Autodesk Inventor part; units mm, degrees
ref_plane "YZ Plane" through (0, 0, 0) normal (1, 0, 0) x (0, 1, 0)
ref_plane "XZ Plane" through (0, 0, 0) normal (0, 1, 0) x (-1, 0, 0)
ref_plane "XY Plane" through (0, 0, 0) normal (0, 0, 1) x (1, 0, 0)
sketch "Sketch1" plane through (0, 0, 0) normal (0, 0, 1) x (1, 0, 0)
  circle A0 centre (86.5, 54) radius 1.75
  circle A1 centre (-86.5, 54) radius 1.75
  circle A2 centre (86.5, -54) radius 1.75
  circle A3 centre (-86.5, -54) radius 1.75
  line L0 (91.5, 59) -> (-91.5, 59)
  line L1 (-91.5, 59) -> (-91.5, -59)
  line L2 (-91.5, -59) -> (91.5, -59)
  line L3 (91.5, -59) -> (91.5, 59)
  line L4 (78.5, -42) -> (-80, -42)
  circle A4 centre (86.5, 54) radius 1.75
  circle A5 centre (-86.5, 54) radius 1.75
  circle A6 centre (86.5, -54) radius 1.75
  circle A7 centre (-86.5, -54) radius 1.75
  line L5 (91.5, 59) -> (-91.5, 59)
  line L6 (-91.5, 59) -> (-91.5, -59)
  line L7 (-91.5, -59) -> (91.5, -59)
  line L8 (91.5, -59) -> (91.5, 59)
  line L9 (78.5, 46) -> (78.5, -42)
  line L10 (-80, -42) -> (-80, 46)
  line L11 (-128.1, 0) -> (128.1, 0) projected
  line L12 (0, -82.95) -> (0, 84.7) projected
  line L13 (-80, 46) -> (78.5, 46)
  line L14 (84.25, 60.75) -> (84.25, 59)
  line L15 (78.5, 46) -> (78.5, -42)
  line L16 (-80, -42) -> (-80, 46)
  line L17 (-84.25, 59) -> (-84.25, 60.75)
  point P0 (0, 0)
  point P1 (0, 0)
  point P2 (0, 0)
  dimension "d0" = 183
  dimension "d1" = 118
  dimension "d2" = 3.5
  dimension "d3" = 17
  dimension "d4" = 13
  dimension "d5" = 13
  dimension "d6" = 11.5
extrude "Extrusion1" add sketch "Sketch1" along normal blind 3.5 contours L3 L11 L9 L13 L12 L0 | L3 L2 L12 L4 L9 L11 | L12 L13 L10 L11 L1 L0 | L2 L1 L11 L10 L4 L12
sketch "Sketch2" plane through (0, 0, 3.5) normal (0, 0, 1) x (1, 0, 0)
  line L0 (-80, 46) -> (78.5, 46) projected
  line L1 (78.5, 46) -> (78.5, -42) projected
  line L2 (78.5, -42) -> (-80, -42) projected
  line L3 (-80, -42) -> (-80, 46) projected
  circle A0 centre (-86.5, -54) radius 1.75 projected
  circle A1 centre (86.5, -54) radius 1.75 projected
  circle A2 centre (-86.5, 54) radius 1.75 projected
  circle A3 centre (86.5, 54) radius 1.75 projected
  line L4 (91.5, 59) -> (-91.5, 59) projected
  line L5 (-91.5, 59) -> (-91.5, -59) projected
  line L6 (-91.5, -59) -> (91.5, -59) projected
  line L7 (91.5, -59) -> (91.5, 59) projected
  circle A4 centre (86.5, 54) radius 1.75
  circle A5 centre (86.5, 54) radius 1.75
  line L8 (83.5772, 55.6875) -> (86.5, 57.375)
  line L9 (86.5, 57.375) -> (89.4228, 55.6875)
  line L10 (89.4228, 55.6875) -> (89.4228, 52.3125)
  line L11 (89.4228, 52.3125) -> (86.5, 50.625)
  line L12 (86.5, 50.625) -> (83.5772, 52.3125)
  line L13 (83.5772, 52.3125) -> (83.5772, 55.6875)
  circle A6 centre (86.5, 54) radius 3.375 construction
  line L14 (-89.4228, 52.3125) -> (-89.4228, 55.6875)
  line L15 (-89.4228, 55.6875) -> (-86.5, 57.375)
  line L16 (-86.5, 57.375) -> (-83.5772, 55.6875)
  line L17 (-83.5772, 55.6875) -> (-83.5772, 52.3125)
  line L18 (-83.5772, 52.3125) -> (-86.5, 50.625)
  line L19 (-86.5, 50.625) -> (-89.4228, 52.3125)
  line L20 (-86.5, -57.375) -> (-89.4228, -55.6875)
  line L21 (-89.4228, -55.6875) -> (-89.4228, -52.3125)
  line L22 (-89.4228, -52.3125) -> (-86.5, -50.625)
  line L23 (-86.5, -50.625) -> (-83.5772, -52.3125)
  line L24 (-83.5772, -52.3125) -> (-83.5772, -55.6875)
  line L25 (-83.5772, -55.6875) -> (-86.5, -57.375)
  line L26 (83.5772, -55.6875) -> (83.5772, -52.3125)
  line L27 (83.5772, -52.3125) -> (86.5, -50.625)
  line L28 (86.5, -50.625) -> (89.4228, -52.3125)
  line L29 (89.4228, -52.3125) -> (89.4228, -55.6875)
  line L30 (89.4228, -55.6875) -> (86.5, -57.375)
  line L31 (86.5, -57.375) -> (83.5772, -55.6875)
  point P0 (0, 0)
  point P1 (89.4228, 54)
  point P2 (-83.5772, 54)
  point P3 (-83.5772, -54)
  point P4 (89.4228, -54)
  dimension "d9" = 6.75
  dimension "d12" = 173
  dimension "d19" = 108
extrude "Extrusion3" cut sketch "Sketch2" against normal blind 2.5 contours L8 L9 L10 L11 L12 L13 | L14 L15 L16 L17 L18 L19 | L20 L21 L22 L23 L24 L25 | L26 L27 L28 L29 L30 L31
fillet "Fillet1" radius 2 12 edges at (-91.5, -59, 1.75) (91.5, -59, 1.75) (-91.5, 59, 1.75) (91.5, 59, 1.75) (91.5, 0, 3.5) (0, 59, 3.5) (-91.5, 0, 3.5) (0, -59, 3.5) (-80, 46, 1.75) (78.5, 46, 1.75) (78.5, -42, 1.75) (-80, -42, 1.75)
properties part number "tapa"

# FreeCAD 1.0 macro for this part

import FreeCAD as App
import Part
import Sketcher
from FreeCAD import Vector
Q = App.Units.Quantity


def edges_at(feature, points):
    """Names of the edges that pass closest to the given points."""
    edges = feature.Shape.Edges
    near = lambda p: min(range(len(edges)), key=lambda i: edges[i].distToShape(Part.Vertex(*p))[0])
    return sorted({f"Edge{near(p) + 1}" for p in points})

doc = App.newDocument("Part")
body = doc.addObject("PartDesign::Body", "Body")

# Sketch on XY plane
sketch1 = body.newObject("Sketcher::SketchObject", "Sketch")
sketch1.AttachmentSupport = (doc.getObject("XY_Plane"), [""])
sketch1.MapMode = "FlatFace"
sketch1.addGeometry(Part.LineSegment(Vector(91.5, 59, 0), Vector(-91.5, 59, 0)), False)
sketch1.addGeometry(Part.LineSegment(Vector(-91.5, 59, 0), Vector(-91.5, -59, 0)), False)
sketch1.addGeometry(Part.LineSegment(Vector(-91.5, -59, 0), Vector(91.5, -59, 0)), False)
sketch1.addGeometry(Part.LineSegment(Vector(91.5, -59, 0), Vector(91.5, 59, 0)), False)
sketch1.addGeometry(Part.LineSegment(Vector(78.5, 46, 0), Vector(78.5, -42, 0)), False)
sketch1.addGeometry(Part.LineSegment(Vector(78.5, -42, 0), Vector(-80, -42, 0)), False)
sketch1.addGeometry(Part.LineSegment(Vector(-80, -42, 0), Vector(-80, 46, 0)), False)
sketch1.addGeometry(Part.LineSegment(Vector(-80, 46, 0), Vector(78.5, 46, 0)), False)
sketch1.addGeometry(Part.Circle(Vector(86.5, 54, 0), Vector(0, 0, 1), 1.8), False)
sketch1.addGeometry(Part.Circle(Vector(86.5, -54, 0), Vector(0, 0, 1), 1.8), False)
sketch1.addGeometry(Part.Circle(Vector(-86.5, 54, 0), Vector(0, 0, 1), 1.8), False)
sketch1.addGeometry(Part.Circle(Vector(-86.5, -54, 0), Vector(0, 0, 1), 1.8), False)
sketch1.addConstraint(Sketcher.Constraint("Coincident", 0, 2, 1, 1))
sketch1.addConstraint(Sketcher.Constraint("Coincident", 1, 2, 2, 1))
sketch1.addConstraint(Sketcher.Constraint("Coincident", 2, 2, 3, 1))
sketch1.addConstraint(Sketcher.Constraint("Coincident", 3, 2, 0, 1))
sketch1.addConstraint(Sketcher.Constraint("Coincident", 4, 2, 5, 1))
sketch1.addConstraint(Sketcher.Constraint("Coincident", 5, 2, 6, 1))
sketch1.addConstraint(Sketcher.Constraint("Coincident", 6, 2, 7, 1))
sketch1.addConstraint(Sketcher.Constraint("Coincident", 7, 2, 4, 1))
sketch1.addConstraint(Sketcher.Constraint("Horizontal", 0))
sketch1.addConstraint(Sketcher.Constraint("Vertical", 1))
sketch1.addConstraint(Sketcher.Constraint("Horizontal", 2))
sketch1.addConstraint(Sketcher.Constraint("Vertical", 3))
sketch1.addConstraint(Sketcher.Constraint("Vertical", 4))
sketch1.addConstraint(Sketcher.Constraint("Horizontal", 5))
sketch1.addConstraint(Sketcher.Constraint("Vertical", 6))
sketch1.addConstraint(Sketcher.Constraint("Horizontal", 7))
sketch1.addConstraint(Sketcher.Constraint("Equal", 8, 9))
sketch1.addConstraint(Sketcher.Constraint("Equal", 9, 10))
sketch1.addConstraint(Sketcher.Constraint("Equal", 10, 11))
sketch1.addConstraint(Sketcher.Constraint("Symmetric", 9, 3, 10, 3, -1, 1))
sketch1.addConstraint(Sketcher.Constraint("Symmetric", 8, 3, 11, 3, -1, 1))
sketch1.addConstraint(Sketcher.Constraint("Symmetric", 0, 2, 2, 2, -1, 1))
sketch1.addConstraint(Sketcher.Constraint("Symmetric", 8, 3, 10, 3, -2))
sketch1.addConstraint(Sketcher.Constraint("Diameter", 8, Q("3.5 mm")))
sketch1.addConstraint(Sketcher.Constraint("DistanceX", 0, 2, 0, 1, Q("183 mm")))
sketch1.addConstraint(Sketcher.Constraint("DistanceY", 1, 2, 1, 1, Q("118 mm")))
sketch1.addConstraint(Sketcher.Constraint("DistanceX", 4, 2, 2, 2, Q("13 mm")))
sketch1.addConstraint(Sketcher.Constraint("DistanceY", 2, 2, 4, 2, Q("17 mm")))
sketch1.addConstraint(Sketcher.Constraint("DistanceY", 6, 2, 0, 2, Q("13 mm")))
sketch1.addConstraint(Sketcher.Constraint("DistanceX", 1, 2, 5, 2, Q("11.5 mm")))
sketch1.addConstraint(Sketcher.Constraint("DistanceY", -1, 1, 8, 3, Q("54 mm")))
sketch1.addConstraint(Sketcher.Constraint("DistanceX", 10, 3, 8, 3, Q("173 mm")))
pad1 = body.newObject("PartDesign::Pad", "Pad")
pad1.Profile = sketch1
pad1.Length = 3.5

# Sketch on XY plane
sketch2 = body.newObject("Sketcher::SketchObject", "Sketch001")
sketch2.AttachmentSupport = (doc.getObject("XY_Plane"), [""])
sketch2.MapMode = "FlatFace"
sketch2.AttachmentOffset = App.Placement(Vector(0, 0, 3.5), App.Rotation())
sketch2.addGeometry(Part.LineSegment(Vector(86.5, 57.4, 0), Vector(83.6, 55.7, 0)), False)
sketch2.addGeometry(Part.LineSegment(Vector(83.6, 55.7, 0), Vector(83.6, 52.3, 0)), False)
sketch2.addGeometry(Part.LineSegment(Vector(83.6, 52.3, 0), Vector(86.5, 50.6, 0)), False)
sketch2.addGeometry(Part.LineSegment(Vector(86.5, 50.6, 0), Vector(89.4, 52.3, 0)), False)
sketch2.addGeometry(Part.LineSegment(Vector(89.4, 52.3, 0), Vector(89.4, 55.7, 0)), False)
sketch2.addGeometry(Part.LineSegment(Vector(89.4, 55.7, 0), Vector(86.5, 57.4, 0)), False)
sketch2.addGeometry(Part.Circle(Vector(86.5, 54, 0), Vector(0, 0, 1), 1.8), False)
sketch2.addGeometry(Part.LineSegment(Vector(-89.4, 55.7, 0), Vector(-89.4, 52.3, 0)), False)
sketch2.addGeometry(Part.LineSegment(Vector(-89.4, 52.3, 0), Vector(-86.5, 50.6, 0)), False)
sketch2.addGeometry(Part.LineSegment(Vector(-86.5, 50.6, 0), Vector(-83.6, 52.3, 0)), False)
sketch2.addGeometry(Part.LineSegment(Vector(-83.6, 52.3, 0), Vector(-83.6, 55.7, 0)), False)
sketch2.addGeometry(Part.LineSegment(Vector(-83.6, 55.7, 0), Vector(-86.5, 57.4, 0)), False)
sketch2.addGeometry(Part.LineSegment(Vector(-86.5, 57.4, 0), Vector(-89.4, 55.7, 0)), False)
sketch2.addGeometry(Part.Circle(Vector(-86.5, 54, 0), Vector(0, 0, 1), 1.8), False)
sketch2.addGeometry(Part.LineSegment(Vector(-89.4, -55.7, 0), Vector(-86.5, -57.4, 0)), False)
sketch2.addGeometry(Part.LineSegment(Vector(-86.5, -57.4, 0), Vector(-83.6, -55.7, 0)), False)
sketch2.addGeometry(Part.LineSegment(Vector(-83.6, -55.7, 0), Vector(-83.6, -52.3, 0)), False)
sketch2.addGeometry(Part.LineSegment(Vector(-83.6, -52.3, 0), Vector(-86.5, -50.6, 0)), False)
sketch2.addGeometry(Part.LineSegment(Vector(-86.5, -50.6, 0), Vector(-89.4, -52.3, 0)), False)
sketch2.addGeometry(Part.LineSegment(Vector(-89.4, -52.3, 0), Vector(-89.4, -55.7, 0)), False)
sketch2.addGeometry(Part.Circle(Vector(-86.5, -54, 0), Vector(0, 0, 1), 1.8), False)
sketch2.addGeometry(Part.LineSegment(Vector(83.6, -52.3, 0), Vector(83.6, -55.7, 0)), False)
sketch2.addGeometry(Part.LineSegment(Vector(83.6, -55.7, 0), Vector(86.5, -57.4, 0)), False)
sketch2.addGeometry(Part.LineSegment(Vector(86.5, -57.4, 0), Vector(89.4, -55.7, 0)), False)
sketch2.addGeometry(Part.LineSegment(Vector(89.4, -55.7, 0), Vector(89.4, -52.3, 0)), False)
sketch2.addGeometry(Part.LineSegment(Vector(89.4, -52.3, 0), Vector(86.5, -50.6, 0)), False)
sketch2.addGeometry(Part.LineSegment(Vector(86.5, -50.6, 0), Vector(83.6, -52.3, 0)), False)
sketch2.addGeometry(Part.Circle(Vector(86.5, -54, 0), Vector(0, 0, 1), 1.8), False)
sketch2.addConstraint(Sketcher.Constraint("Coincident", 0, 2, 1, 1))
sketch2.addConstraint(Sketcher.Constraint("Coincident", 1, 2, 2, 1))
sketch2.addConstraint(Sketcher.Constraint("Coincident", 2, 2, 3, 1))
sketch2.addConstraint(Sketcher.Constraint("Coincident", 3, 2, 4, 1))
sketch2.addConstraint(Sketcher.Constraint("Coincident", 4, 2, 5, 1))
sketch2.addConstraint(Sketcher.Constraint("Coincident", 5, 2, 0, 1))
sketch2.addConstraint(Sketcher.Constraint("Coincident", 7, 2, 8, 1))
sketch2.addConstraint(Sketcher.Constraint("Coincident", 8, 2, 9, 1))
sketch2.addConstraint(Sketcher.Constraint("Coincident", 9, 2, 10, 1))
sketch2.addConstraint(Sketcher.Constraint("Coincident", 10, 2, 11, 1))
sketch2.addConstraint(Sketcher.Constraint("Coincident", 11, 2, 12, 1))
sketch2.addConstraint(Sketcher.Constraint("Coincident", 12, 2, 7, 1))
sketch2.addConstraint(Sketcher.Constraint("Coincident", 14, 2, 15, 1))
sketch2.addConstraint(Sketcher.Constraint("Coincident", 15, 2, 16, 1))
sketch2.addConstraint(Sketcher.Constraint("Coincident", 16, 2, 17, 1))
sketch2.addConstraint(Sketcher.Constraint("Coincident", 17, 2, 18, 1))
sketch2.addConstraint(Sketcher.Constraint("Coincident", 18, 2, 19, 1))
sketch2.addConstraint(Sketcher.Constraint("Coincident", 19, 2, 14, 1))
sketch2.addConstraint(Sketcher.Constraint("Coincident", 21, 2, 22, 1))
sketch2.addConstraint(Sketcher.Constraint("Coincident", 22, 2, 23, 1))
sketch2.addConstraint(Sketcher.Constraint("Coincident", 23, 2, 24, 1))
sketch2.addConstraint(Sketcher.Constraint("Coincident", 24, 2, 25, 1))
sketch2.addConstraint(Sketcher.Constraint("Coincident", 25, 2, 26, 1))
sketch2.addConstraint(Sketcher.Constraint("Coincident", 26, 2, 21, 1))
sketch2.addConstraint(Sketcher.Constraint("Vertical", 1))
sketch2.addConstraint(Sketcher.Constraint("Vertical", 4))
sketch2.addConstraint(Sketcher.Constraint("Vertical", 7))
sketch2.addConstraint(Sketcher.Constraint("Vertical", 10))
sketch2.addConstraint(Sketcher.Constraint("Vertical", 16))
sketch2.addConstraint(Sketcher.Constraint("Vertical", 19))
sketch2.addConstraint(Sketcher.Constraint("Vertical", 21))
sketch2.addConstraint(Sketcher.Constraint("Vertical", 24))
sketch2.addConstraint(Sketcher.Constraint("Equal", 6, 13))
sketch2.addConstraint(Sketcher.Constraint("Equal", 13, 20))
sketch2.addConstraint(Sketcher.Constraint("Equal", 20, 27))
sketch2.addConstraint(Sketcher.Constraint("Symmetric", 6, 3, 20, 3, -1, 1))
sketch2.addConstraint(Sketcher.Constraint("Symmetric", 13, 3, 27, 3, -1, 1))
sketch2.addConstraint(Sketcher.Constraint("Symmetric", 5, 2, 14, 2, -1, 1))
sketch2.addConstraint(Sketcher.Constraint("Symmetric", 0, 2, 15, 2, -1, 1))
sketch2.addConstraint(Sketcher.Constraint("Symmetric", 2, 2, 17, 2, -1, 1))
sketch2.addConstraint(Sketcher.Constraint("Symmetric", 3, 2, 18, 2, -1, 1))
sketch2.addConstraint(Sketcher.Constraint("Symmetric", 10, 2, 21, 2, -1, 1))
sketch2.addConstraint(Sketcher.Constraint("Symmetric", 11, 2, 22, 2, -1, 1))
sketch2.addConstraint(Sketcher.Constraint("Symmetric", 12, 2, 23, 2, -1, 1))
sketch2.addConstraint(Sketcher.Constraint("Symmetric", 8, 2, 25, 2, -1, 1))
sketch2.addConstraint(Sketcher.Constraint("Symmetric", 6, 3, 13, 3, -2))
sketch2.addConstraint(Sketcher.Constraint("Symmetric", 3, 2, 7, 2, -2))
sketch2.addConstraint(Sketcher.Constraint("Symmetric", 2, 2, 8, 2, -2))
sketch2.addConstraint(Sketcher.Constraint("Symmetric", 1, 2, 9, 2, -2))
sketch2.addConstraint(Sketcher.Constraint("Symmetric", 5, 2, 11, 2, -2))
sketch2.addConstraint(Sketcher.Constraint("Parallel", 0, 3))
sketch2.addConstraint(Sketcher.Constraint("Parallel", 2, 5))
sketch2.addConstraint(Sketcher.Constraint("Parallel", 5, 8))
sketch2.addConstraint(Sketcher.Constraint("Parallel", 8, 11))
sketch2.addConstraint(Sketcher.Constraint("Parallel", 9, 12))
sketch2.addConstraint(Sketcher.Constraint("Parallel", 11, 14))
sketch2.addConstraint(Sketcher.Constraint("Parallel", 14, 17))
sketch2.addConstraint(Sketcher.Constraint("Parallel", 22, 25))
sketch2.addConstraint(Sketcher.Constraint("Parallel", 23, 26))
sketch2.addConstraint(Sketcher.Constraint("Horizontal", 1, 2, 3, 2))
sketch2.addConstraint(Sketcher.Constraint("Horizontal", 0, 2, 4, 2))
sketch2.addConstraint(Sketcher.Constraint("Vertical", 27, 3, 2, 2))
sketch2.addConstraint(Sketcher.Constraint("DistanceX", 13, 3, 6, 3, Q("173 mm")))
sketch2.addConstraint(Sketcher.Constraint("DistanceY", 20, 3, 13, 3, Q("108 mm")))
sketch2.addConstraint(Sketcher.Constraint("DistanceY", 14, 2, 8, 2, Q("108 mm")))
sketch2.addConstraint(Sketcher.Constraint("Diameter", 6, Q("3.5 mm")))
sketch2.addConstraint(Sketcher.Constraint("Angle", 0, Q("-149.9997 deg")))
sketch2.addConstraint(Sketcher.Constraint("DistanceY", 8, 2, 11, 2, Q("6.75 mm")))
sketch2.addConstraint(Sketcher.Constraint("DistanceY", 1, 2, 1, 1, Q("3.375 mm")))
pocket1 = body.newObject("PartDesign::Pocket", "Pocket")
pocket1.Profile = sketch2
pocket1.Length = 2.5
doc.recompute()

fillet = body.newObject("PartDesign::Fillet", "Fillet")
fillet.Base = (pocket1, edges_at(pocket1, [
    (-91.5, -59, 1.75),
    (91.5, -59, 1.75),
    (-91.5, 59, 1.75),
    (91.5, 59, 1.75),
    (91.5, 0, 3.5),
    (0, 59, 3.5),
    (-91.5, 0, 3.5),
    (0, -59, 3.5),
    (-80, 46, 1.75),
    (78.5, 46, 1.75),
    (78.5, -42, 1.75),
    (-80, -42, 1.75),
]))
fillet.Radius = 2

doc.recompute()
